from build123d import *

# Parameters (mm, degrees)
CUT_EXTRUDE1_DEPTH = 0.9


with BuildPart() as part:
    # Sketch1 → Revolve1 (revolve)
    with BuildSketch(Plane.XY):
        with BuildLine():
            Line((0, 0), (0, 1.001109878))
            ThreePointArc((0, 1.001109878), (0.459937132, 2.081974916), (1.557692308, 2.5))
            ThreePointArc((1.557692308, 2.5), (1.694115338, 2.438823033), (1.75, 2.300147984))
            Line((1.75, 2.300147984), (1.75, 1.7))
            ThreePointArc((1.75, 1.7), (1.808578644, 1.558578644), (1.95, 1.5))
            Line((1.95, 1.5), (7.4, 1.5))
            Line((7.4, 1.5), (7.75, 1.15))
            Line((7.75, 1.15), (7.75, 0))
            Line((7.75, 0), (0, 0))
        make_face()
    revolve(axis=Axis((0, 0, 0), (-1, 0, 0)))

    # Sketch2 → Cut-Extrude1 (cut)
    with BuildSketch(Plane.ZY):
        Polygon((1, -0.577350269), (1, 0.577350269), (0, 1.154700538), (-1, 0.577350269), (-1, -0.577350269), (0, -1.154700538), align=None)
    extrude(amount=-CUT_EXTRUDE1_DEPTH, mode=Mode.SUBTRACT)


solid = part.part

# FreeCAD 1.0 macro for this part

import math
import FreeCAD as App
import Part
import Sketcher

V = App.Vector
Q = App.Units.Quantity


def add_polygon(sketch, points):
    """Adds a closed chain of lines whose ends are joined by coincident constraints."""
    first, n = sketch.GeometryCount, len(points)
    for a, b in zip(points, points[1:] + points[:1]):
        sketch.addGeometry(Part.LineSegment(App.Vector(*a, 0), App.Vector(*b, 0)), False)
    for i in range(n):
        sketch.addConstraint(Sketcher.Constraint("Coincident", first + i, 2, first + (i + 1) % n, 1))

doc = App.newDocument("Part")
params = doc.addObject("Spreadsheet::Sheet", "Params")
for row, (alias, value) in enumerate([
    ("sketch1_radius", "0.2 mm"),
    ("sketch1_radius2", "1.5 mm"),
    ("sketch1_width", "7.75 mm"),
    ("sketch1_width2", "5.45 mm"),
    ("sketch1_height", "1.15 mm"),
    ("revolution_angle", "360 deg"),
    ("pocket1_length", "0.9 mm"),
], start=1):
    params.set(f"A{row}", alias)
    params.set(f"B{row}", "=" + value)
    params.setAlias(f"B{row}", alias)

body = doc.addObject("PartDesign::Body", "Body")

# Sketch on XY plane
sketch1 = body.newObject("Sketcher::SketchObject", "Sketch")
sketch1.AttachmentSupport = (doc.getObject("XY_Plane"), [""])
sketch1.MapMode = "FlatFace"
sketch1.addGeometry(Part.LineSegment(V(0, 1, 0), V(0, 0, 0)), False)
sketch1.addGeometry(Part.LineSegment(V(0, 0, 0), V(7.75, 0, 0)), False)
sketch1.addGeometry(Part.LineSegment(V(7.75, 0, 0), V(7.75, 1.15, 0)), False)
sketch1.addGeometry(Part.LineSegment(V(7.75, 1.15, 0), V(7.4, 1.5, 0)), False)
sketch1.addGeometry(Part.LineSegment(V(7.4, 1.5, 0), V(1.95, 1.5, 0)), False)
sketch1.addGeometry(Part.ArcOfCircle(Part.Circle(V(1.95, 1.7, 0), V(0, 0, 1), 0.2), math.radians(-180), math.radians(-90)), False)
sketch1.addGeometry(Part.LineSegment(V(1.75, 1.7, 0), V(1.75, 2.3, 0)), False)
sketch1.addGeometry(Part.ArcOfCircle(Part.Circle(V(1.55, 2.3, 0), V(0, 0, 1), 0.2), math.radians(0), math.radians(88)), False)
sketch1.addGeometry(Part.ArcOfCircle(Part.Circle(V(1.5, 1, 0), V(0, 0, 1), 1.5), math.radians(88), math.radians(180)), False)
sketch1.addConstraint(Sketcher.Constraint("Coincident", 0, 2, 1, 1))
sketch1.addConstraint(Sketcher.Constraint("Coincident", 1, 2, 2, 1))
sketch1.addConstraint(Sketcher.Constraint("Coincident", 2, 2, 3, 1))
sketch1.addConstraint(Sketcher.Constraint("Coincident", 3, 2, 4, 1))
sketch1.addConstraint(Sketcher.Constraint("Tangent", 4, 2, 5, 2))
sketch1.addConstraint(Sketcher.Constraint("Tangent", 5, 1, 6, 1))
sketch1.addConstraint(Sketcher.Constraint("Tangent", 6, 2, 7, 1))
sketch1.addConstraint(Sketcher.Constraint("Tangent", 7, 2, 8, 1))
sketch1.addConstraint(Sketcher.Constraint("Tangent", 8, 2, 0, 1))
sketch1.addConstraint(Sketcher.Constraint("Vertical", 0))
sketch1.addConstraint(Sketcher.Constraint("Horizontal", 1))
sketch1.addConstraint(Sketcher.Constraint("Vertical", 2))
sketch1.addConstraint(Sketcher.Constraint("Horizontal", 4))
sketch1.addConstraint(Sketcher.Constraint("Vertical", 6))
sketch1.addConstraint(Sketcher.Constraint("Coincident", 0, 2, -1, 1))
sketch1.addConstraint(Sketcher.Constraint("Equal", 5, 7))
sketch1.addConstraint(Sketcher.Constraint("Radius", 5, Q("0.2 mm")))
sketch1.addConstraint(Sketcher.Constraint("Radius", 8, Q("1.5 mm")))
sketch1.addConstraint(Sketcher.Constraint("Angle", 3, Q("135 deg")))
sketch1.addConstraint(Sketcher.Constraint("DistanceY", 4, 2, 7, 2, Q("1 mm")))
sketch1.addConstraint(Sketcher.Constraint("DistanceX", 1, 1, 1, 2, Q("7.75 mm")))
sketch1.addConstraint(Sketcher.Constraint("DistanceX", 4, 2, 4, 1, Q("5.45 mm")))
sketch1.addConstraint(Sketcher.Constraint("DistanceY", 2, 1, 2, 2, Q("1.15 mm")))
sketch1.addConstraint(Sketcher.Constraint("DistanceY", -1, 1, 5, 3, Q("1.7 mm")))
sketch1.setExpression("Constraints[16]", "Params.sketch1_radius")
sketch1.setExpression("Constraints[17]", "Params.sketch1_radius2")
sketch1.setExpression("Constraints[20]", "Params.sketch1_width")
sketch1.setExpression("Constraints[21]", "Params.sketch1_width2")
sketch1.setExpression("Constraints[22]", "Params.sketch1_height")
revolution = body.newObject("PartDesign::Revolution", "Revolution")
revolution.Profile = sketch1
revolution.ReferenceAxis = (sketch1, ["H_Axis"])
revolution.setExpression("Angle", "Params.revolution_angle")

# Sketch on YZ plane
sketch2 = body.newObject("Sketcher::SketchObject", "Sketch001")
sketch2.AttachmentSupport = (doc.getObject("YZ_Plane"), [""])
sketch2.MapMode = "FlatFace"
add_polygon(sketch2, [(-0.6, 1), (0.6, 1), (1.2, 0), (0.6, -1), (-0.6, -1), (-1.2, 0)])  # lines 0-5
sketch2.addConstraint(Sketcher.Constraint("Horizontal", 0))
sketch2.addConstraint(Sketcher.Constraint("Horizontal", 3))
sketch2.addConstraint(Sketcher.Constraint("Symmetric", 0, 2, 3, 2, -1, 1))
sketch2.addConstraint(Sketcher.Constraint("Symmetric", 1, 2, 4, 2, -1, 1))
sketch2.addConstraint(Sketcher.Constraint("PointOnObject", 1, 2, -1))
sketch2.addConstraint(Sketcher.Constraint("Parallel", 2, 5))
sketch2.addConstraint(Sketcher.Constraint("Vertical", 0, 2, 2, 2))
sketch2.addConstraint(Sketcher.Constraint("Angle", 1, Q("-60 deg")))
sketch2.addConstraint(Sketcher.Constraint("DistanceY", -1, 1, 0, 2, Q("1 mm")))
sketch2.addConstraint(Sketcher.Constraint("DistanceX", 0, 1, 0, 2, Q("1.154701 mm")))
pocket1 = body.newObject("PartDesign::Pocket", "Pocket")
pocket1.Profile = sketch2
pocket1.setExpression("Length", "Params.pocket1_length")
pocket1.Reversed = True

doc.recompute()
